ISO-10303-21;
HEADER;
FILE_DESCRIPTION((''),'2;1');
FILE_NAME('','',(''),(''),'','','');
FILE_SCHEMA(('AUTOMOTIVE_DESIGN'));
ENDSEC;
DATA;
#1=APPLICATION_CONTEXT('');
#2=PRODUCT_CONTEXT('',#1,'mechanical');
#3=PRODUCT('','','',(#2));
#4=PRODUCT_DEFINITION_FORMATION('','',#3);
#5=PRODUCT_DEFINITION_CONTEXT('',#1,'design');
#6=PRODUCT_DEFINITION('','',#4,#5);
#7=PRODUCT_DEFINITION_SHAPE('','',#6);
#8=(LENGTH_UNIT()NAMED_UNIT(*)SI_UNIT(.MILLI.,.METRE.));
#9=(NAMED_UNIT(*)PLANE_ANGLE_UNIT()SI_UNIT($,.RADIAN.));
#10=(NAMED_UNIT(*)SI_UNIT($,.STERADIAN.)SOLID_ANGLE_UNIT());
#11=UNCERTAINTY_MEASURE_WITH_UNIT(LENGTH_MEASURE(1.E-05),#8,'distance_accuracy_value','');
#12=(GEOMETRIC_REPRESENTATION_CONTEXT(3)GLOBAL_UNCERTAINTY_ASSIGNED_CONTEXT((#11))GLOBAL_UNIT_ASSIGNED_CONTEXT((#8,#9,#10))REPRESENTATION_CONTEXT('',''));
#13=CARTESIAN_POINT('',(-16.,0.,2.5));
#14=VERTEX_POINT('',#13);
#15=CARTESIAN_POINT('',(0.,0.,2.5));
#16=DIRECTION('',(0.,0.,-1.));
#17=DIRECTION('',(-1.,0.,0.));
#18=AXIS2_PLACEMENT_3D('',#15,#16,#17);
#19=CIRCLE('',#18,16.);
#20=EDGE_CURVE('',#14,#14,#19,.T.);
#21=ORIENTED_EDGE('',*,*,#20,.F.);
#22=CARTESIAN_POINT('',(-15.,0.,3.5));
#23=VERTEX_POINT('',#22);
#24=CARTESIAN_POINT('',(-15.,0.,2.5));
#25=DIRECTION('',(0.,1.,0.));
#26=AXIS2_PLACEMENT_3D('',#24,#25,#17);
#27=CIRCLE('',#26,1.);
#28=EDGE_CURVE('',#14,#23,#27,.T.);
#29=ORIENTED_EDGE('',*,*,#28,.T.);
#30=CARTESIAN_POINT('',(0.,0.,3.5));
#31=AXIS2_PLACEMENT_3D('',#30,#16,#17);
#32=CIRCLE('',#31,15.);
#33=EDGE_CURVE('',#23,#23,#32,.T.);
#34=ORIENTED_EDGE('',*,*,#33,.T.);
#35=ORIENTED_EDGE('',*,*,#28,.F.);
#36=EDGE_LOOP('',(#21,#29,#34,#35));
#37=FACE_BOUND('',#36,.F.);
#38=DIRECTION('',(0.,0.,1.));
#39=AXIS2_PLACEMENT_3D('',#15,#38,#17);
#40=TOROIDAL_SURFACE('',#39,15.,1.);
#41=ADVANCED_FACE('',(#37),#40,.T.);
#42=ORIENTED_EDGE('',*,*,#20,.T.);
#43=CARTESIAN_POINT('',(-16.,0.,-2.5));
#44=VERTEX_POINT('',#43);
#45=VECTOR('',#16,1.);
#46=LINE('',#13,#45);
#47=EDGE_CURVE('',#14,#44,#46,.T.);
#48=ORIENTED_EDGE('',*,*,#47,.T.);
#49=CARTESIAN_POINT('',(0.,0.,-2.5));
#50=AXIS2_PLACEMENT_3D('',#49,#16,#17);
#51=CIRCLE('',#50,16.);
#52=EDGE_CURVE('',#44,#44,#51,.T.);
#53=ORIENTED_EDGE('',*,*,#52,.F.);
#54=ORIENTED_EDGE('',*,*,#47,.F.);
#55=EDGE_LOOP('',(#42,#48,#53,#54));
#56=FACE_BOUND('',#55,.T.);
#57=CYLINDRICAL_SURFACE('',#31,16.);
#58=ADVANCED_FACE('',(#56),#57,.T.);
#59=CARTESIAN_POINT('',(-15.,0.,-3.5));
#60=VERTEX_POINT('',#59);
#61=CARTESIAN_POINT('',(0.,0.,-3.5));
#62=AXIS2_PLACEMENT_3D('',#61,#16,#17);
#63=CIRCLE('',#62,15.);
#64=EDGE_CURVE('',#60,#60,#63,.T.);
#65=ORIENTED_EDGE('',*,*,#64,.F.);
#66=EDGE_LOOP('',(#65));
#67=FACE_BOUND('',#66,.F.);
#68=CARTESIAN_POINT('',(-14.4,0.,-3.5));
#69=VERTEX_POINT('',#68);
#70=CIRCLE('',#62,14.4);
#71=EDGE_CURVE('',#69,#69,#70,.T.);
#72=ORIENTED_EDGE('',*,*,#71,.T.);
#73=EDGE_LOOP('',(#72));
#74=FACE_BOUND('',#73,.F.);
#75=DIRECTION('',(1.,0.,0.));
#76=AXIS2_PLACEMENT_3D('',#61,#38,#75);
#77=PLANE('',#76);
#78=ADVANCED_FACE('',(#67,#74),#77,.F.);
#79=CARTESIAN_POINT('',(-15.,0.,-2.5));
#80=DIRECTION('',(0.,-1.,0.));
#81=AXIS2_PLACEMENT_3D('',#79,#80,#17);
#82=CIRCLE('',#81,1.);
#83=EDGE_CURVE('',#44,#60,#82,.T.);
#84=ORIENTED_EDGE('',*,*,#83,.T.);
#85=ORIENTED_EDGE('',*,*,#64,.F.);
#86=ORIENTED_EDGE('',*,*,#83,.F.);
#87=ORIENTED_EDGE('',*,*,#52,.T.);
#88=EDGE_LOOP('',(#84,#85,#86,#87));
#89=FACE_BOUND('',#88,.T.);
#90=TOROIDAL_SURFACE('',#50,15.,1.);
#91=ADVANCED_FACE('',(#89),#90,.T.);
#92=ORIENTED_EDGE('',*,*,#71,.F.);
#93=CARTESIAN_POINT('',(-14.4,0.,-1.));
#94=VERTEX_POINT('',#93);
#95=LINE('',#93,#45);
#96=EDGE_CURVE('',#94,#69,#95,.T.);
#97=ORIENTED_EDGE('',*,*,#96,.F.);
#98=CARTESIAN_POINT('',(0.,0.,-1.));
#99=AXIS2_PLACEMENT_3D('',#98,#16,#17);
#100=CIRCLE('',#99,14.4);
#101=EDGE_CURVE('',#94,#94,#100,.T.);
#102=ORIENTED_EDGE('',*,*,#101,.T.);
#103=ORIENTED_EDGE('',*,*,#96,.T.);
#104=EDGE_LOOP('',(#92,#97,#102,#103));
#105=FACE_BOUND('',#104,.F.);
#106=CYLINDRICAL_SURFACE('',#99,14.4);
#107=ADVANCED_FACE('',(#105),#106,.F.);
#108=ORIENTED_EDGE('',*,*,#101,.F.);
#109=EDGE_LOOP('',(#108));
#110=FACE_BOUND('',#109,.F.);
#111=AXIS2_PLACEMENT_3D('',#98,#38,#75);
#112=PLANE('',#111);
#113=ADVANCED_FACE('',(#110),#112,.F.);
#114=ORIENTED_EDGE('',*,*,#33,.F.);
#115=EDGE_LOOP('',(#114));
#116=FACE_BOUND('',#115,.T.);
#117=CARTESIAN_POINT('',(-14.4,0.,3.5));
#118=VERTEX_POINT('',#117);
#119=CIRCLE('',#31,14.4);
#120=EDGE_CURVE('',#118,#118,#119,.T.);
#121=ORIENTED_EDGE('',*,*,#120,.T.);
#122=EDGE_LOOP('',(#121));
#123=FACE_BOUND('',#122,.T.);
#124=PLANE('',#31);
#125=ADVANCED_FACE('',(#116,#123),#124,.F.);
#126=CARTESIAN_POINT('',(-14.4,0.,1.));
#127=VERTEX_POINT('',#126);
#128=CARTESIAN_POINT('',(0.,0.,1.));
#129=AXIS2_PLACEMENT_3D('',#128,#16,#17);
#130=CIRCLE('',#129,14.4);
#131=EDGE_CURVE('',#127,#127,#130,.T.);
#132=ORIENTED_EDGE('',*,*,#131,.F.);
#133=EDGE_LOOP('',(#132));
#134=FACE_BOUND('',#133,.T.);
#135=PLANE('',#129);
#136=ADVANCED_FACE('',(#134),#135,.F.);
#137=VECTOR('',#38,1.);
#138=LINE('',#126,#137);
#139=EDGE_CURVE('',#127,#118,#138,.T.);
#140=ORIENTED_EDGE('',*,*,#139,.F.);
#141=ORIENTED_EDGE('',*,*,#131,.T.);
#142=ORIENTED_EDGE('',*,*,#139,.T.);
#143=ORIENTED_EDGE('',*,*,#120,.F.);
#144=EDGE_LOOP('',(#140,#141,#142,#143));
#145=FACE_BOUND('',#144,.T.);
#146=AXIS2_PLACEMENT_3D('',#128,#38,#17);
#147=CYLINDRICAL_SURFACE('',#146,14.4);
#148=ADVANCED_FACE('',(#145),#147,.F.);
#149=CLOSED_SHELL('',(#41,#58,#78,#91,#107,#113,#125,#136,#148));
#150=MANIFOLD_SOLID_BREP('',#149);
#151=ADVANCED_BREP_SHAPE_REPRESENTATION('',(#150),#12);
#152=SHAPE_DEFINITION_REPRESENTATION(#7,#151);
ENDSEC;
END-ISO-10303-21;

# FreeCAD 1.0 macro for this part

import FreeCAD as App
import Part
import Sketcher

V = App.Vector
Q = App.Units.Quantity


def edges_at(feature, points):
    """Names of the edges that pass closest to the given points."""
    edges = feature.Shape.Edges
    near = lambda p: min(range(len(edges)), key=lambda i: edges[i].distToShape(Part.Vertex(*p))[0])
    return sorted({f"Edge{near(p) + 1}" for p in points})


def add_polygon(sketch, points):
    """Adds a closed chain of lines whose ends are joined by coincident constraints."""
    first, n = sketch.GeometryCount, len(points)
    for a, b in zip(points, points[1:] + points[:1]):
        sketch.addGeometry(Part.LineSegment(App.Vector(*a, 0), App.Vector(*b, 0)), False)
    for i in range(n):
        sketch.addConstraint(Sketcher.Constraint("Coincident", first + i, 2, first + (i + 1) % n, 1))

doc = App.newDocument("Part")
body = doc.addObject("PartDesign::Body", "Body")

# Sketch on XZ plane
sketch1 = body.newObject("Sketcher::SketchObject", "Sketch")
sketch1.AttachmentSupport = (doc.getObject("XZ_Plane"), [""])
sketch1.MapMode = "FlatFace"
add_polygon(sketch1, [(-16, 0), (0, 0), (0, 1), (-14.4, 1), (-14.4, 3.5), (-16, 3.5)])  # lines 0-5
sketch1.addConstraint([
    Sketcher.Constraint("Horizontal", 0),
    Sketcher.Constraint("Vertical", 1),
    Sketcher.Constraint("Horizontal", 2),
    Sketcher.Constraint("Vertical", 3),
    Sketcher.Constraint("Horizontal", 4),
    Sketcher.Constraint("Vertical", 5),
    Sketcher.Constraint("Coincident", 0, 2, -1, 1),
    Sketcher.Constraint("DistanceX", 0, 1, 0, 2, Q("16 mm")),
    Sketcher.Constraint("DistanceY", 1, 1, 1, 2, Q("1 mm")),
    Sketcher.Constraint("DistanceX", 2, 2, 2, 1, Q("14.4 mm")),
    Sketcher.Constraint("DistanceY", 3, 1, 3, 2, Q("2.5 mm")),
])
revolution = body.newObject("PartDesign::Revolution", "Revolution")
revolution.Profile = sketch1
revolution.ReferenceAxis = (sketch1, ["V_Axis"])
revolution.Angle = 360
body2 = doc.addObject("PartDesign::Body", "Body001")
doc.recompute()

body2.BaseFeature = body
doc.recompute()

mirroring = doc.addObject("Part::Mirroring", "Mirroring")
mirroring.Source = body
mirroring.Base = V(0, 0, 0)
mirroring.Normal = V(0, 0, 1)
body3 = doc.addObject("PartDesign::Body", "Body002")
body3.BaseFeature = mirroring
boolean = body2.newObject("PartDesign::Boolean", "Boolean")
boolean.Type = "Fuse"
boolean.addObjects([body3])
doc.recompute()

fillet = body2.newObject("PartDesign::Fillet", "Fillet")
fillet.Base = (boolean, edges_at(boolean, [(16, 0, 3.5)]))
fillet.Radius = 1
doc.recompute()

fillet2 = body2.newObject("PartDesign::Fillet", "Fillet001")
fillet2.Base = (fillet, edges_at(fillet, [(16, 0, -3.5)]))
fillet2.Radius = 1
mirroring.Visibility = False

doc.recompute()
